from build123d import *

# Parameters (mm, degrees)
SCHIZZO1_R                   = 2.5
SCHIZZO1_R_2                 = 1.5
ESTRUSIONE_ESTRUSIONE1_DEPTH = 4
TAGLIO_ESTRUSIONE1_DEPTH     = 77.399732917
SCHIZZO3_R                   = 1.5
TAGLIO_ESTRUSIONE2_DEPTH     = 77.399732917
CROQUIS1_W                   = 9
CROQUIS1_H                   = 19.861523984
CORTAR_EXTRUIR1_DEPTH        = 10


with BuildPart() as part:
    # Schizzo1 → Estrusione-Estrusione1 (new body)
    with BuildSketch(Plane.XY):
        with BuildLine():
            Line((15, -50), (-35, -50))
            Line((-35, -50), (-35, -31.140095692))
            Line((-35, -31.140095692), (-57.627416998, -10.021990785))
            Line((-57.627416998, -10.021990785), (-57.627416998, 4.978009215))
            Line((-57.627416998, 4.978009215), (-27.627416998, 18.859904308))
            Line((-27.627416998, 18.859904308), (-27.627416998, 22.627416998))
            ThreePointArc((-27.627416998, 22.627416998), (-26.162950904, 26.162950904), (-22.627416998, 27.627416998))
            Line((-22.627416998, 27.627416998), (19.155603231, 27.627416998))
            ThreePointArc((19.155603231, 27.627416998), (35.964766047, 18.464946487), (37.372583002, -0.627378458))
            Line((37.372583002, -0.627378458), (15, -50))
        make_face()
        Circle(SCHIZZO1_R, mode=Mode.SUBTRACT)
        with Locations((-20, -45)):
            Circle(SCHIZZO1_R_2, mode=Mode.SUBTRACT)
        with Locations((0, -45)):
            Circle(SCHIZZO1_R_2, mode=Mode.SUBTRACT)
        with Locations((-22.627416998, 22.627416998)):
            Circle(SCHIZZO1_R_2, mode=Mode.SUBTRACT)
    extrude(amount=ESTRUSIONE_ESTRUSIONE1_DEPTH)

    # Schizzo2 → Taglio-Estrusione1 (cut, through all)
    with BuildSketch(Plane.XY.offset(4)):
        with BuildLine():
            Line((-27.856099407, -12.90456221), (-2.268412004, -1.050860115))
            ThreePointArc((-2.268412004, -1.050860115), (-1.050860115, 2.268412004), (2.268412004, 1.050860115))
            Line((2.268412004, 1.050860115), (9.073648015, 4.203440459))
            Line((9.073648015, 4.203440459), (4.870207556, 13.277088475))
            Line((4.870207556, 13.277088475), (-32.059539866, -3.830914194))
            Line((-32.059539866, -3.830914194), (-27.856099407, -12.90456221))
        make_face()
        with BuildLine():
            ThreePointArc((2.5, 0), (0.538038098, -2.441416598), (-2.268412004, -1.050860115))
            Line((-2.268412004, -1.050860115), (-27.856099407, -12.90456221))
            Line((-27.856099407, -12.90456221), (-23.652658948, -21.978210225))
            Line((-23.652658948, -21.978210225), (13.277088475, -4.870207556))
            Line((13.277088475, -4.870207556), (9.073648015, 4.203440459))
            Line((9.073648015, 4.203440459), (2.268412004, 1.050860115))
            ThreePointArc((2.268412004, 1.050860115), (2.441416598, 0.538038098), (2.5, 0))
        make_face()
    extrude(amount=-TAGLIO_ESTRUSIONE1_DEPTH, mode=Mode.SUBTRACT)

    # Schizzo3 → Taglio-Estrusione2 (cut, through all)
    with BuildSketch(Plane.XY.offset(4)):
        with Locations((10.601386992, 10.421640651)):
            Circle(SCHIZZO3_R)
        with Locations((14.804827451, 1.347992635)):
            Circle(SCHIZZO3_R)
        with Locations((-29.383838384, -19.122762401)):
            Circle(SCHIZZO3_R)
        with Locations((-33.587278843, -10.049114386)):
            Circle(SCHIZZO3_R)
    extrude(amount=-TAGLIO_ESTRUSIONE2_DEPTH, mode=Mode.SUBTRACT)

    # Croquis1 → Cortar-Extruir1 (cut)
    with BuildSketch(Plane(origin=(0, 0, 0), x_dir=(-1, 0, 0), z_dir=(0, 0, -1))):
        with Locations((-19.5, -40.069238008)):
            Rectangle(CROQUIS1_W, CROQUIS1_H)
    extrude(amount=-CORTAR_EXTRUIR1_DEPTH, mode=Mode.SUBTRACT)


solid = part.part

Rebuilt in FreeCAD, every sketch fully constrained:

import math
import FreeCAD as App
import Part
import Sketcher
Q = App.Units.Quantity


def add_polygon(sketch, points):
    """Adds a closed chain of lines whose ends are joined by coincident constraints."""
    first, n = sketch.GeometryCount, len(points)
    for a, b in zip(points, points[1:] + points[:1]):
        sketch.addGeometry(Part.LineSegment(App.Vector(*a, 0), App.Vector(*b, 0)), False)
    for i in range(n):
        sketch.addConstraint(Sketcher.Constraint("Coincident", first + i, 2, first + (i + 1) % n, 1))

doc = App.newDocument("Part")
body = doc.addObject("PartDesign::Body", "Body")

# Sketch on XY plane
sketch1 = doc.addObject("Sketcher::SketchObject", "Sketch")
body.addObject(sketch1)
sketch1.AttachmentSupport = (doc.XY_Plane, [""])
sketch1.MapMode = "FlatFace"
sketch1.addGeometry(Part.LineSegment(App.Vector(-35, -50, 0), App.Vector(15, -50, 0)), False)
sketch1.addGeometry(Part.LineSegment(App.Vector(15, -50, 0), App.Vector(37.4, -0.6, 0)), False)
sketch1.addGeometry(Part.ArcOfCircle(Part.Circle(App.Vector(19.2, 7.6, 0), App.Vector(0, 0, 1), 20), math.radians(-24), math.radians(90)), False)
sketch1.addGeometry(Part.LineSegment(App.Vector(19.2, 27.6, 0), App.Vector(-22.6, 27.6, 0)), False)
sketch1.addGeometry(Part.ArcOfCircle(Part.Circle(App.Vector(-22.6, 22.6, 0), App.Vector(0, 0, 1), 5), math.radians(90), math.radians(180)), False)
sketch1.addGeometry(Part.LineSegment(App.Vector(-27.6, 22.6, 0), App.Vector(-27.6, 18.9, 0)), False)
sketch1.addGeometry(Part.LineSegment(App.Vector(-27.6, 18.9, 0), App.Vector(-57.6, 5, 0)), False)
sketch1.addGeometry(Part.LineSegment(App.Vector(-57.6, 5, 0), App.Vector(-57.6, -10, 0)), False)
sketch1.addGeometry(Part.LineSegment(App.Vector(-57.6, -10, 0), App.Vector(-35, -31.1, 0)), False)
sketch1.addGeometry(Part.LineSegment(App.Vector(-35, -31.1, 0), App.Vector(-35, -50, 0)), False)
sketch1.addGeometry(Part.Circle(App.Vector(0, -45, 0), App.Vector(0, 0, 1), 1.5), False)
sketch1.addGeometry(Part.Circle(App.Vector(-20, -45, 0), App.Vector(0, 0, 1), 1.5), False)
sketch1.addGeometry(Part.Circle(App.Vector(0, 0, 0), App.Vector(0, 0, 1), 2.5), False)
sketch1.addGeometry(Part.Circle(App.Vector(-22.6, 22.6, 0), App.Vector(0, 0, 1), 1.5), False)
sketch1.addConstraint(Sketcher.Constraint("Coincident", 0, 2, 1, 1))
sketch1.addConstraint(Sketcher.Constraint("Tangent", 1, 2, 2, 1))
sketch1.addConstraint(Sketcher.Constraint("Tangent", 2, 2, 3, 1))
sketch1.addConstraint(Sketcher.Constraint("Tangent", 3, 2, 4, 1))
sketch1.addConstraint(Sketcher.Constraint("Tangent", 4, 2, 5, 1))
sketch1.addConstraint(Sketcher.Constraint("Coincident", 5, 2, 6, 1))
sketch1.addConstraint(Sketcher.Constraint("Coincident", 6, 2, 7, 1))
sketch1.addConstraint(Sketcher.Constraint("Coincident", 7, 2, 8, 1))
sketch1.addConstraint(Sketcher.Constraint("Coincident", 8, 2, 9, 1))
sketch1.addConstraint(Sketcher.Constraint("Coincident", 9, 2, 0, 1))
sketch1.addConstraint(Sketcher.Constraint("Horizontal", 0))
sketch1.addConstraint(Sketcher.Constraint("Horizontal", 3))
sketch1.addConstraint(Sketcher.Constraint("Vertical", 5))
sketch1.addConstraint(Sketcher.Constraint("Vertical", 7))
sketch1.addConstraint(Sketcher.Constraint("Vertical", 9))
sketch1.addConstraint(Sketcher.Constraint("Coincident", 12, 3, -1, 1))
sketch1.addConstraint(Sketcher.Constraint("Coincident", 13, 3, 4, 3))
sketch1.addConstraint(Sketcher.Constraint("Equal", 10, 11))
sketch1.addConstraint(Sketcher.Constraint("Equal", 11, 13))
sketch1.addConstraint(Sketcher.Constraint("PointOnObject", 10, 3, -2))
sketch1.addConstraint(Sketcher.Constraint("Horizontal", 10, 3, 11, 3))
sketch1.addConstraint(Sketcher.Constraint("Diameter", 10, Q("3 mm")))
sketch1.addConstraint(Sketcher.Constraint("Diameter", 12, Q("5 mm")))
sketch1.addConstraint(Sketcher.Constraint("Radius", 2, Q("20 mm")))
sketch1.addConstraint(Sketcher.Constraint("Radius", 4, Q("5 mm")))
sketch1.addConstraint(Sketcher.Constraint("DistanceX", 0, 1, 0, 2, Q("50 mm")))
sketch1.addConstraint(Sketcher.Constraint("DistanceY", 7, 2, 7, 1, Q("15 mm")))
sketch1.addConstraint(Sketcher.Constraint("DistanceY", 10, 3, -1, 1, Q("45 mm")))
sketch1.addConstraint(Sketcher.Constraint("DistanceX", 11, 3, -1, 1, Q("20 mm")))
sketch1.addConstraint(Sketcher.Constraint("DistanceX", -1, 1, 0, 2, Q("15 mm")))
sketch1.addConstraint(Sketcher.Constraint("DistanceY", 0, 2, -1, 1, Q("50 mm")))
sketch1.addConstraint(Sketcher.Constraint("DistanceX", 4, 3, 1, 2, Q("60 mm")))
sketch1.addConstraint(Sketcher.Constraint("DistanceX", 6, 2, 5, 2, Q("30 mm")))
sketch1.addConstraint(Sketcher.Constraint("DistanceX", 3, 2, 3, 1, Q("41.78302 mm")))
sketch1.addConstraint(Sketcher.Constraint("Distance", 6, Q("33.056119 mm")))
sketch1.addConstraint(Sketcher.Constraint("Distance", 8, Q("30.951161 mm")))
sketch1.addConstraint(Sketcher.Constraint("DistanceY", 5, 2, 5, 1, Q("3.767513 mm")))
sketch1.addConstraint(Sketcher.Constraint("DistanceY", 9, 2, 9, 1, Q("18.859904 mm")))
pad1 = doc.addObject("PartDesign::Pad", "Pad")
body.addObject(pad1)
pad1.Profile = sketch1
pad1.Length = 4

# Sketch on XY plane
sketch2 = doc.addObject("Sketcher::SketchObject", "Sketch001")
body.addObject(sketch2)
sketch2.AttachmentSupport = (doc.XY_Plane, [""])
sketch2.MapMode = "FlatFace"
sketch2.AttachmentOffset = App.Placement(App.Vector(0, 0, 4), App.Rotation())
add_polygon(sketch2, [(9.1, 4.2), (4.9, 13.3), (-32.1, -3.8), (-27.9, -12.9), (-23.7, -22), (13.3, -4.9)])  # lines 0-5
sketch2.addGeometry(Part.ArcOfCircle(Part.Circle(App.Vector(0, 0, 0), App.Vector(0, 0, 1), 2.5), math.radians(25), math.radians(205)), False)  # 6
sketch2.addGeometry(Part.ArcOfCircle(Part.Circle(App.Vector(0, 0, 0), App.Vector(0, 0, 1), 2.5), math.radians(0), math.radians(25)), False)  # 7
sketch2.addGeometry(Part.ArcOfCircle(Part.Circle(App.Vector(0, 0, 0), App.Vector(0, 0, 1), 2.5), math.radians(-155), math.radians(0)), False)  # 8
sketch2.addConstraint(Sketcher.Constraint("Tangent", 6, 1, 7, 2))
sketch2.addConstraint(Sketcher.Constraint("Tangent", 7, 1, 8, 2))
sketch2.addConstraint(Sketcher.Constraint("Tangent", 8, 1, 6, 2))
sketch2.addConstraint(Sketcher.Constraint("Coincident", 6, 3, -1, 1))
sketch2.addConstraint(Sketcher.Constraint("PointOnObject", 7, 1, -1))
sketch2.addConstraint(Sketcher.Constraint("Perpendicular", 0, 1))
sketch2.addConstraint(Sketcher.Constraint("Perpendicular", 1, 2))
sketch2.addConstraint(Sketcher.Constraint("Parallel", 2, 3))
sketch2.addConstraint(Sketcher.Constraint("Perpendicular", 3, 4))
sketch2.addConstraint(Sketcher.Constraint("Perpendicular", 4, 5))
sketch2.addConstraint(Sketcher.Constraint("Equal", 0, 2))
sketch2.addConstraint(Sketcher.Constraint("Equal", 2, 3))
sketch2.addConstraint(Sketcher.Constraint("Radius", 6, Q("2.5 mm")))
sketch2.addConstraint(Sketcher.Constraint("Distance", 0, Q("10 mm")))
sketch2.addConstraint(Sketcher.Constraint("Distance", 1, Q("40.7 mm")))
sketch2.addConstraint(Sketcher.Constraint("DistanceX", 2, 2, -1, 1, Q("27.856099 mm")))
sketch2.addConstraint(Sketcher.Constraint("DistanceY", -1, 1, 0, 2, Q("13.277088 mm")))
sketch2.addConstraint(Sketcher.Constraint("DistanceX", 1, 2, -1, 1, Q("32.05954 mm")))
sketch2.addConstraint(Sketcher.Constraint("DistanceY", -1, 1, 6, 1, Q("1.05086 mm")))
sketch2.addConstraint(Sketcher.Constraint("DistanceY", 8, 1, -1, 1, Q("1.05086 mm")))
pocket1 = doc.addObject("PartDesign::Pocket", "Pocket")
body.addObject(pocket1)
pocket1.Profile = sketch2
pocket1.Type = "ThroughAll"

# Sketch on XY plane
sketch3 = doc.addObject("Sketcher::SketchObject", "Sketch002")
body.addObject(sketch3)
sketch3.AttachmentSupport = (doc.XY_Plane, [""])
sketch3.MapMode = "FlatFace"
sketch3.AttachmentOffset = App.Placement(App.Vector(0, 0, 4), App.Rotation())
sketch3.addGeometry(Part.Circle(App.Vector(10.6, 10.4, 0), App.Vector(0, 0, 1), 1.5), False)
sketch3.addGeometry(Part.Circle(App.Vector(14.8, 1.3, 0), App.Vector(0, 0, 1), 1.5), False)
sketch3.addGeometry(Part.Circle(App.Vector(-29.4, -19.1, 0), App.Vector(0, 0, 1), 1.5), False)
sketch3.addGeometry(Part.Circle(App.Vector(-33.6, -10, 0), App.Vector(0, 0, 1), 1.5), False)
sketch3.addConstraint(Sketcher.Constraint("Equal", 0, 1))
sketch3.addConstraint(Sketcher.Constraint("Equal", 1, 2))
sketch3.addConstraint(Sketcher.Constraint("Equal", 2, 3))
sketch3.addConstraint(Sketcher.Constraint("Diameter", 0, Q("3 mm")))
sketch3.addConstraint(Sketcher.Constraint("DistanceY", -1, 1, 0, 3, Q("10.421641 mm")))
sketch3.addConstraint(Sketcher.Constraint("DistanceX", 2, 3, -1, 1, Q("29.383838 mm")))
sketch3.addConstraint(Sketcher.Constraint("DistanceX", 3, 3, -1, 1, Q("33.587279 mm")))
sketch3.addConstraint(Sketcher.Constraint("DistanceX", 0, 3, 1, 3, Q("4.20344 mm")))
sketch3.addConstraint(Sketcher.Constraint("DistanceY", 1, 3, 0, 3, Q("9.073648 mm")))
sketch3.addConstraint(Sketcher.Constraint("DistanceY", 2, 3, 3, 3, Q("9.073648 mm")))
sketch3.addConstraint(Sketcher.Constraint("DistanceX", -1, 1, 0, 3, Q("10.601387 mm")))
sketch3.addConstraint(Sketcher.Constraint("DistanceY", 2, 3, -1, 1, Q("19.122762 mm")))
pocket2 = doc.addObject("PartDesign::Pocket", "Pocket001")
body.addObject(pocket2)
pocket2.Profile = sketch3
pocket2.Type = "ThroughAll"

# Sketch on XY plane
sketch4 = doc.addObject("Sketcher::SketchObject", "Sketch003")
body.addObject(sketch4)
sketch4.AttachmentSupport = (doc.XY_Plane, [""])
sketch4.MapMode = "FlatFace"
add_polygon(sketch4, [(24, -30), (24, -50), (15, -50), (15, -30)])  # lines 0-3
sketch4.addConstraint(Sketcher.Constraint("Vertical", 0))
sketch4.addConstraint(Sketcher.Constraint("Horizontal", 1))
sketch4.addConstraint(Sketcher.Constraint("Vertical", 2))
sketch4.addConstraint(Sketcher.Constraint("Horizontal", 3))
sketch4.addConstraint(Sketcher.Constraint("DistanceX", 1, 2, 1, 1, Q("9 mm")))
sketch4.addConstraint(Sketcher.Constraint("DistanceX", -1, 1, 0, 2, Q("24 mm")))
sketch4.addConstraint(Sketcher.Constraint("DistanceY", 0, 2, -1, 1, Q("50 mm")))
sketch4.addConstraint(Sketcher.Constraint("DistanceY", 0, 2, 0, 1, Q("19.861524 mm")))
pocket3 = doc.addObject("PartDesign::Pocket", "Pocket002")
body.addObject(pocket3)
pocket3.Profile = sketch4
pocket3.Length = 10
pocket3.Reversed = True

doc.recompute()
